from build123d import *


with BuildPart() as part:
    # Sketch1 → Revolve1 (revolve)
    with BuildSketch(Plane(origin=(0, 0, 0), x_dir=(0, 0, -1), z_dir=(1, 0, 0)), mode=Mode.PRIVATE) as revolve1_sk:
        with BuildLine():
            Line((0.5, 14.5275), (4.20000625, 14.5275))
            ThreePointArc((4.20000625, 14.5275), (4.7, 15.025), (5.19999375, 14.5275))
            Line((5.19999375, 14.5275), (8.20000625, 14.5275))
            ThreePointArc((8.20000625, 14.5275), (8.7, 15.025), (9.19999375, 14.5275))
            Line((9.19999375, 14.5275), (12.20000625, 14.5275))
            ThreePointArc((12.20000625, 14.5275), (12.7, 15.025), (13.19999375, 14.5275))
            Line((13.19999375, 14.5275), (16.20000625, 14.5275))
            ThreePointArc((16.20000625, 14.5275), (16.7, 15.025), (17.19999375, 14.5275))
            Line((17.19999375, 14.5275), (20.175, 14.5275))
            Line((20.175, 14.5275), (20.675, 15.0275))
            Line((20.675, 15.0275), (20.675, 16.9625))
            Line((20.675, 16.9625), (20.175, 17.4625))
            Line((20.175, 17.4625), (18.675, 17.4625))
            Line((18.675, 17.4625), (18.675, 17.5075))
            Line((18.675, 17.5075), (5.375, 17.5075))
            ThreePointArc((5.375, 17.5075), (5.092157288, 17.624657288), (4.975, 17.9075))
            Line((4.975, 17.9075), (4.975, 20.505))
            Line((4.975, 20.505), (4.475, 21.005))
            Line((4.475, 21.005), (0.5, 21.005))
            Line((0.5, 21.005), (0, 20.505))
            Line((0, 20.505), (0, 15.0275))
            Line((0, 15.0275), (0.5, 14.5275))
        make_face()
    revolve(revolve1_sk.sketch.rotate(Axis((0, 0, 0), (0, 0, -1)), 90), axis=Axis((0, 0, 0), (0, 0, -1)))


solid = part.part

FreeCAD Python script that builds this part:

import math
import FreeCAD as App
import Part
import Sketcher
from FreeCAD import Vector
Q = App.Units.Quantity

doc = App.newDocument("Part")
body = doc.addObject("PartDesign::Body", "Body")

sketch1 = body.newObject("Sketcher::SketchObject", "Sketch")
sketch1.AttachmentSupport = (doc.getObject("YZ_Plane"), [""])
sketch1.MapMode = "FlatFace"
sketch1.addGeometry([
    Part.LineSegment(Vector(14.5275, -0.5, 0), Vector(14.5275, -4.200006, 0)),
    Part.ArcOfCircle(Part.Circle(Vector(14.525, -4.7, 0), Vector(0, 0, 1), 0.5), math.radians(-89.71352), math.radians(89.71352)),
    Part.LineSegment(Vector(14.5275, -5.199994, 0), Vector(14.5275, -8.200006, 0)),
    Part.ArcOfCircle(Part.Circle(Vector(14.525, -8.7, 0), Vector(0, 0, 1), 0.5), math.radians(-89.71352), math.radians(89.71352)),
    Part.LineSegment(Vector(14.5275, -9.199994, 0), Vector(14.5275, -12.200006, 0)),
    Part.ArcOfCircle(Part.Circle(Vector(14.525, -12.7, 0), Vector(0, 0, 1), 0.5), math.radians(-89.71352), math.radians(89.71352)),
    Part.LineSegment(Vector(14.5275, -13.199994, 0), Vector(14.5275, -16.200006, 0)),
    Part.ArcOfCircle(Part.Circle(Vector(14.525, -16.7, 0), Vector(0, 0, 1), 0.5), math.radians(-89.71352), math.radians(89.71352)),
    Part.LineSegment(Vector(14.5275, -17.199994, 0), Vector(14.5275, -20.175, 0)),
    Part.LineSegment(Vector(14.5275, -20.175, 0), Vector(15.0275, -20.675, 0)),
    Part.LineSegment(Vector(15.0275, -20.675, 0), Vector(16.9625, -20.675, 0)),
    Part.LineSegment(Vector(16.9625, -20.675, 0), Vector(17.4625, -20.175, 0)),
    Part.LineSegment(Vector(17.4625, -20.175, 0), Vector(17.4625, -18.675, 0)),
    Part.LineSegment(Vector(17.4625, -18.675, 0), Vector(17.5075, -18.675, 0)),
    Part.LineSegment(Vector(17.5075, -18.675, 0), Vector(17.5075, -5.375, 0)),
    Part.ArcOfCircle(Part.Circle(Vector(17.9075, -5.375, 0), Vector(0, 0, 1), 0.4), math.radians(90), math.radians(180)),
    Part.LineSegment(Vector(17.9075, -4.975, 0), Vector(20.505, -4.975, 0)),
    Part.LineSegment(Vector(20.505, -4.975, 0), Vector(21.005, -4.475, 0)),
    Part.LineSegment(Vector(21.005, -4.475, 0), Vector(21.005, -0.5, 0)),
    Part.LineSegment(Vector(21.005, -0.5, 0), Vector(20.505, 0, 0)),
    Part.LineSegment(Vector(20.505, 0, 0), Vector(15.0275, 0, 0)),
    Part.LineSegment(Vector(15.0275, 0, 0), Vector(14.5275, -0.5, 0)),
], False)
sketch1.addConstraint([
    Sketcher.Constraint("Coincident", 0, 2, 1, 2),
    Sketcher.Constraint("Coincident", 1, 1, 2, 1),
    Sketcher.Constraint("Coincident", 2, 2, 3, 2),
    Sketcher.Constraint("Coincident", 3, 1, 4, 1),
    Sketcher.Constraint("Coincident", 4, 2, 5, 2),
    Sketcher.Constraint("Coincident", 5, 1, 6, 1),
    Sketcher.Constraint("Coincident", 6, 2, 7, 2),
    Sketcher.Constraint("Coincident", 7, 1, 8, 1),
    Sketcher.Constraint("Coincident", 8, 2, 9, 1),
    Sketcher.Constraint("Coincident", 9, 2, 10, 1),
    Sketcher.Constraint("Coincident", 10, 2, 11, 1),
    Sketcher.Constraint("Coincident", 11, 2, 12, 1),
    Sketcher.Constraint("Coincident", 12, 2, 13, 1),
    Sketcher.Constraint("Coincident", 13, 2, 14, 1),
    Sketcher.Constraint("Tangent", 14, 2, 15, 2),
    Sketcher.Constraint("Tangent", 15, 1, 16, 1),
    Sketcher.Constraint("Coincident", 16, 2, 17, 1),
    Sketcher.Constraint("Coincident", 17, 2, 18, 1),
    Sketcher.Constraint("Coincident", 18, 2, 19, 1),
    Sketcher.Constraint("Coincident", 19, 2, 20, 1),
    Sketcher.Constraint("Coincident", 20, 2, 21, 1),
    Sketcher.Constraint("Coincident", 21, 2, 0, 1),
    Sketcher.Constraint("Vertical", 0),
    Sketcher.Constraint("Vertical", 2),
    Sketcher.Constraint("Vertical", 4),
    Sketcher.Constraint("Vertical", 6),
    Sketcher.Constraint("Vertical", 8),
    Sketcher.Constraint("Horizontal", 10),
    Sketcher.Constraint("Vertical", 12),
    Sketcher.Constraint("Horizontal", 13),
    Sketcher.Constraint("Vertical", 14),
    Sketcher.Constraint("Horizontal", 16),
    Sketcher.Constraint("Vertical", 18),
    Sketcher.Constraint("Horizontal", 20),
    Sketcher.Constraint("Equal", 1, 3),
    Sketcher.Constraint("Equal", 3, 5),
    Sketcher.Constraint("Equal", 5, 7),
    Sketcher.Constraint("PointOnObject", 19, 2, -1),
    Sketcher.Constraint("Perpendicular", 9, 11),
    Sketcher.Constraint("Parallel", 11, 17),
    Sketcher.Constraint("Perpendicular", 17, 19),
    Sketcher.Constraint("Perpendicular", 19, 21),
    Sketcher.Constraint("Horizontal", 8, 2, 11, 2),
    Sketcher.Constraint("Horizontal", 18, 2, 21, 2),
    Sketcher.Constraint("Vertical", 1, 3, 3, 3),
    Sketcher.Constraint("Vertical", 3, 3, 5, 3),
    Sketcher.Constraint("Vertical", 5, 3, 7, 3),
    Sketcher.Constraint("Vertical", 0, 2, 1, 1),
    Sketcher.Constraint("Vertical", 2, 2, 3, 1),
    Sketcher.Constraint("Vertical", 4, 2, 5, 1),
    Sketcher.Constraint("Vertical", 6, 2, 7, 1),
    Sketcher.Constraint("Vertical", 16, 2, 19, 2),
    Sketcher.Constraint("Vertical", 9, 2, 20, 2),
    Sketcher.Constraint("Equal", 2, 4),
    Sketcher.Constraint("Equal", 4, 6),
    Sketcher.Constraint("Equal", 9, 11),
    Sketcher.Constraint("Radius", 1, Q("0.5 mm")),
    Sketcher.Constraint("Radius", 15, Q("0.4 mm")),
    Sketcher.Constraint("DistanceY", 12, 1, 12, 2, Q("1.5 mm")),
    Sketcher.Constraint("DistanceY", 14, 1, 14, 2, Q("13.3 mm")),
    Sketcher.Constraint("DistanceY", 3, 3, 1, 3, Q("4 mm")),
    Sketcher.Constraint("DistanceY", 10, 2, 12, 2, Q("2 mm")),
    Sketcher.Constraint("DistanceY", 1, 3, -1, 1, Q("4.7 mm")),
    Sketcher.Constraint("DistanceX", 10, 1, 10, 2, Q("1.935 mm")),
    Sketcher.Constraint("DistanceX", 13, 1, 13, 2, Q("0.045 mm")),
    Sketcher.Constraint("DistanceY", 18, 1, 18, 2, Q("3.975 mm")),
    Sketcher.Constraint("DistanceX", 1, 3, 16, 2, Q("5.98 mm")),
    Sketcher.Constraint("DistanceX", 16, 1, 16, 2, Q("2.5975 mm")),
    Sketcher.Constraint("DistanceX", -1, 1, 1, 3, Q("14.525 mm")),
])
revolution = body.newObject("PartDesign::Revolution", "Revolution")
revolution.Profile = sketch1
revolution.ReferenceAxis = (sketch1, ["V_Axis"])
revolution.Angle = 360

doc.recompute()
